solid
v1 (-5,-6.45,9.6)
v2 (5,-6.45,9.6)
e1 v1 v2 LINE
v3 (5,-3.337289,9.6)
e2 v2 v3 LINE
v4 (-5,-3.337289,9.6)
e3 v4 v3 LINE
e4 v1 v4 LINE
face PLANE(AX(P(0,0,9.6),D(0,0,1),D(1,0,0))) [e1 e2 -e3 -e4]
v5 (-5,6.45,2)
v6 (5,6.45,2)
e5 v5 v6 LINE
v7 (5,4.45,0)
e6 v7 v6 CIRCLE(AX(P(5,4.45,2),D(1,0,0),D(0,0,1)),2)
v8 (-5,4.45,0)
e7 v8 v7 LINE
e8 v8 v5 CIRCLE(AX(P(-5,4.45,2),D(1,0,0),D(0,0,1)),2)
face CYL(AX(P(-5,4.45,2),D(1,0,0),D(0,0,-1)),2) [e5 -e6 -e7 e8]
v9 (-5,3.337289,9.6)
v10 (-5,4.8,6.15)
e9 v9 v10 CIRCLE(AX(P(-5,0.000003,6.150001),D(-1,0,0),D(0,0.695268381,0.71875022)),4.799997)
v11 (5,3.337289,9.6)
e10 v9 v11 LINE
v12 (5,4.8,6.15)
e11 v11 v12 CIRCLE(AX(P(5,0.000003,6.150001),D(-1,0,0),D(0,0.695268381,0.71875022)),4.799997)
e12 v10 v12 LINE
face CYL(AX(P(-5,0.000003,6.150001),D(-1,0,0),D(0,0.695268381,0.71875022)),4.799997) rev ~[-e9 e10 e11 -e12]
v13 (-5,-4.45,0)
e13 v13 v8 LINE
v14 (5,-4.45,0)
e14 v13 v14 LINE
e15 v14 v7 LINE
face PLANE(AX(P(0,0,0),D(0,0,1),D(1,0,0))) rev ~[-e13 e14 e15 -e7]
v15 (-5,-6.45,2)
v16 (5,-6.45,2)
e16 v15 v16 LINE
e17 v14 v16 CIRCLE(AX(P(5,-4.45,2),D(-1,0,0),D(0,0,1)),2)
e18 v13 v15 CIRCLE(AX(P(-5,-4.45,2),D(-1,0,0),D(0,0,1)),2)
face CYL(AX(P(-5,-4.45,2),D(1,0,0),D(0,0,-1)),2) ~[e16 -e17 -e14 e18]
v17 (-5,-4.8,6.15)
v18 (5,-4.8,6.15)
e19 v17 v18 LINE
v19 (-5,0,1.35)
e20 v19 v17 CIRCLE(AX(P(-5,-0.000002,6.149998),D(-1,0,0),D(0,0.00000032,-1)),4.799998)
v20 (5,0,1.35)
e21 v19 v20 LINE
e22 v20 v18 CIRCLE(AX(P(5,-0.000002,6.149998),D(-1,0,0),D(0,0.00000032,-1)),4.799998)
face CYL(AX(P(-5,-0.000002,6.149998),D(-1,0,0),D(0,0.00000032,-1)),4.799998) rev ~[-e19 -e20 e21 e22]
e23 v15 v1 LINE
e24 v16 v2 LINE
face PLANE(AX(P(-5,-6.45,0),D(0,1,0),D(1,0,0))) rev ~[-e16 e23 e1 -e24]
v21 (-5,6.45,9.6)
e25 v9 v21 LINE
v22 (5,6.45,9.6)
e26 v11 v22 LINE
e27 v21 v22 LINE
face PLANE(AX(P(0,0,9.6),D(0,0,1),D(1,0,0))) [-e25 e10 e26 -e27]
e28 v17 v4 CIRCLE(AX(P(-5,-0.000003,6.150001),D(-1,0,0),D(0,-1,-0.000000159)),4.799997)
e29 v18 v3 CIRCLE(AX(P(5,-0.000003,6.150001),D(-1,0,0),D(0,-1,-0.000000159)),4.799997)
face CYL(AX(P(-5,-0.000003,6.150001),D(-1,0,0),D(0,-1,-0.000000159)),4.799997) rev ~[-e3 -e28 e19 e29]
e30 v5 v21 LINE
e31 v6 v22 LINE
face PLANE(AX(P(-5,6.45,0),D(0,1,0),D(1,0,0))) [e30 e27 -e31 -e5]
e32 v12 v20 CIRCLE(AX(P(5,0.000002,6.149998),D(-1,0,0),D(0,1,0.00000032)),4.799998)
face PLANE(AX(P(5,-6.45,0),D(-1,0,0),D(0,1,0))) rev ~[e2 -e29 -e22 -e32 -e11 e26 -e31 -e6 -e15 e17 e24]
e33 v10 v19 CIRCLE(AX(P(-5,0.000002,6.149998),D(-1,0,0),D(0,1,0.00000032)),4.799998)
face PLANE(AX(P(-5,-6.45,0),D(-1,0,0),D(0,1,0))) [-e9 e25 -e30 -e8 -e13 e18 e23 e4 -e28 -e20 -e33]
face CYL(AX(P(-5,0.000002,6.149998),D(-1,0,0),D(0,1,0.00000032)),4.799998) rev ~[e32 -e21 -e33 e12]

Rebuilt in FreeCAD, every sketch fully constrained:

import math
import FreeCAD as App
import Part
import Sketcher

V = App.Vector
Q = App.Units.Quantity


def edges_at(feature, points):
    """Names of the edges that pass closest to the given points."""
    edges = feature.Shape.Edges
    near = lambda p: min(range(len(edges)), key=lambda i: edges[i].distToShape(Part.Vertex(*p))[0])
    return sorted({f"Edge{near(p) + 1}" for p in points})


def add_polygon(sketch, points):
    """Adds a closed chain of lines whose ends are joined by coincident constraints."""
    first, n = sketch.GeometryCount, len(points)
    for a, b in zip(points, points[1:] + points[:1]):
        sketch.addGeometry(Part.LineSegment(App.Vector(*a, 0), App.Vector(*b, 0)), False)
    for i in range(n):
        sketch.addConstraint(Sketcher.Constraint("Coincident", first + i, 2, first + (i + 1) % n, 1))

doc = App.newDocument("Part")
body = doc.addObject("PartDesign::Body", "Body")

# Sketch on XY plane
sketch1 = body.newObject("Sketcher::SketchObject", "Sketch")
sketch1.AttachmentSupport = (doc.getObject("XY_Plane"), [""])
sketch1.MapMode = "FlatFace"
add_polygon(sketch1, [(-5, 6), (-5, -6), (5, -6), (5, 6)])  # lines 0-3
sketch1.addConstraint([
    Sketcher.Constraint("Vertical", 0),
    Sketcher.Constraint("Horizontal", 1),
    Sketcher.Constraint("Vertical", 2),
    Sketcher.Constraint("Horizontal", 3),
    Sketcher.Constraint("Symmetric", 0, 2, 2, 2, -1, 1),
    Sketcher.Constraint("DistanceX", 1, 1, 1, 2, Q("10 mm")),
    Sketcher.Constraint("DistanceY", 0, 2, 0, 1, Q("12.9 mm")),
])
pad1 = body.newObject("PartDesign::Pad", "Pad")
pad1.Profile = sketch1
pad1.Length = 9.6

# Sketch on YZ plane
sketch2 = body.newObject("Sketcher::SketchObject", "Sketch001")
sketch2.AttachmentSupport = (doc.getObject("YZ_Plane"), [""])
sketch2.MapMode = "FlatFace"
sketch2.AttachmentOffset = App.Placement(V(0, 0, -5), App.Rotation())
sketch2.addGeometry([
    Part.ArcOfCircle(Part.Circle(V(0, 6.2, 0), V(0, 0, 1), 4.8), math.radians(134), math.radians(180)),  # 0
    Part.LineSegment(V(-3.3, 9.6, 0), V(3.3, 9.6, 0)),  # 1
    Part.ArcOfCircle(Part.Circle(V(0, 6.2, 0), V(0, 0, 1), 4.8), math.radians(0), math.radians(46)),  # 2
    Part.ArcOfCircle(Part.Circle(V(0, 6.1, 0), V(0, 0, 1), 4.8), math.radians(-90), math.radians(0)),  # 3
    Part.ArcOfCircle(Part.Circle(V(0, 6.1, 0), V(0, 0, 1), 4.8), math.radians(180), math.radians(270)),  # 4
], False)
sketch2.addConstraint([
    Sketcher.Constraint("Coincident", 0, 1, 1, 1),
    Sketcher.Constraint("Coincident", 1, 2, 2, 2),
    Sketcher.Constraint("Tangent", 2, 1, 3, 2),
    Sketcher.Constraint("Tangent", 3, 1, 4, 2),
    Sketcher.Constraint("Tangent", 4, 1, 0, 2),
    Sketcher.Constraint("Horizontal", 1),
    Sketcher.Constraint("Coincident", 2, 3, 0, 3),
    Sketcher.Constraint("Equal", 0, 2),
    Sketcher.Constraint("Symmetric", 2, 1, 4, 1, -2),
    Sketcher.Constraint("PointOnObject", 3, 1, -2),
    Sketcher.Constraint("Horizontal", 4, 3, 2, 1),
    Sketcher.Constraint("Radius", 3, Q("4.799998 mm")),
    Sketcher.Constraint("DistanceY", -1, 1, 0, 1, Q("9.6 mm")),
    Sketcher.Constraint("DistanceY", -1, 1, 0, 3, Q("6.150001 mm")),
])
pocket1 = body.newObject("PartDesign::Pocket", "Pocket")
pocket1.Profile = sketch2
pocket1.Type = "ThroughAll"
pocket1.Reversed = True
doc.recompute()

fillet = body.newObject("PartDesign::Fillet", "Fillet")
fillet.Base = (pocket1, edges_at(pocket1, [(0, -6.45, 0), (0, 6.45, 0)]))
fillet.Radius = 2

doc.recompute()
